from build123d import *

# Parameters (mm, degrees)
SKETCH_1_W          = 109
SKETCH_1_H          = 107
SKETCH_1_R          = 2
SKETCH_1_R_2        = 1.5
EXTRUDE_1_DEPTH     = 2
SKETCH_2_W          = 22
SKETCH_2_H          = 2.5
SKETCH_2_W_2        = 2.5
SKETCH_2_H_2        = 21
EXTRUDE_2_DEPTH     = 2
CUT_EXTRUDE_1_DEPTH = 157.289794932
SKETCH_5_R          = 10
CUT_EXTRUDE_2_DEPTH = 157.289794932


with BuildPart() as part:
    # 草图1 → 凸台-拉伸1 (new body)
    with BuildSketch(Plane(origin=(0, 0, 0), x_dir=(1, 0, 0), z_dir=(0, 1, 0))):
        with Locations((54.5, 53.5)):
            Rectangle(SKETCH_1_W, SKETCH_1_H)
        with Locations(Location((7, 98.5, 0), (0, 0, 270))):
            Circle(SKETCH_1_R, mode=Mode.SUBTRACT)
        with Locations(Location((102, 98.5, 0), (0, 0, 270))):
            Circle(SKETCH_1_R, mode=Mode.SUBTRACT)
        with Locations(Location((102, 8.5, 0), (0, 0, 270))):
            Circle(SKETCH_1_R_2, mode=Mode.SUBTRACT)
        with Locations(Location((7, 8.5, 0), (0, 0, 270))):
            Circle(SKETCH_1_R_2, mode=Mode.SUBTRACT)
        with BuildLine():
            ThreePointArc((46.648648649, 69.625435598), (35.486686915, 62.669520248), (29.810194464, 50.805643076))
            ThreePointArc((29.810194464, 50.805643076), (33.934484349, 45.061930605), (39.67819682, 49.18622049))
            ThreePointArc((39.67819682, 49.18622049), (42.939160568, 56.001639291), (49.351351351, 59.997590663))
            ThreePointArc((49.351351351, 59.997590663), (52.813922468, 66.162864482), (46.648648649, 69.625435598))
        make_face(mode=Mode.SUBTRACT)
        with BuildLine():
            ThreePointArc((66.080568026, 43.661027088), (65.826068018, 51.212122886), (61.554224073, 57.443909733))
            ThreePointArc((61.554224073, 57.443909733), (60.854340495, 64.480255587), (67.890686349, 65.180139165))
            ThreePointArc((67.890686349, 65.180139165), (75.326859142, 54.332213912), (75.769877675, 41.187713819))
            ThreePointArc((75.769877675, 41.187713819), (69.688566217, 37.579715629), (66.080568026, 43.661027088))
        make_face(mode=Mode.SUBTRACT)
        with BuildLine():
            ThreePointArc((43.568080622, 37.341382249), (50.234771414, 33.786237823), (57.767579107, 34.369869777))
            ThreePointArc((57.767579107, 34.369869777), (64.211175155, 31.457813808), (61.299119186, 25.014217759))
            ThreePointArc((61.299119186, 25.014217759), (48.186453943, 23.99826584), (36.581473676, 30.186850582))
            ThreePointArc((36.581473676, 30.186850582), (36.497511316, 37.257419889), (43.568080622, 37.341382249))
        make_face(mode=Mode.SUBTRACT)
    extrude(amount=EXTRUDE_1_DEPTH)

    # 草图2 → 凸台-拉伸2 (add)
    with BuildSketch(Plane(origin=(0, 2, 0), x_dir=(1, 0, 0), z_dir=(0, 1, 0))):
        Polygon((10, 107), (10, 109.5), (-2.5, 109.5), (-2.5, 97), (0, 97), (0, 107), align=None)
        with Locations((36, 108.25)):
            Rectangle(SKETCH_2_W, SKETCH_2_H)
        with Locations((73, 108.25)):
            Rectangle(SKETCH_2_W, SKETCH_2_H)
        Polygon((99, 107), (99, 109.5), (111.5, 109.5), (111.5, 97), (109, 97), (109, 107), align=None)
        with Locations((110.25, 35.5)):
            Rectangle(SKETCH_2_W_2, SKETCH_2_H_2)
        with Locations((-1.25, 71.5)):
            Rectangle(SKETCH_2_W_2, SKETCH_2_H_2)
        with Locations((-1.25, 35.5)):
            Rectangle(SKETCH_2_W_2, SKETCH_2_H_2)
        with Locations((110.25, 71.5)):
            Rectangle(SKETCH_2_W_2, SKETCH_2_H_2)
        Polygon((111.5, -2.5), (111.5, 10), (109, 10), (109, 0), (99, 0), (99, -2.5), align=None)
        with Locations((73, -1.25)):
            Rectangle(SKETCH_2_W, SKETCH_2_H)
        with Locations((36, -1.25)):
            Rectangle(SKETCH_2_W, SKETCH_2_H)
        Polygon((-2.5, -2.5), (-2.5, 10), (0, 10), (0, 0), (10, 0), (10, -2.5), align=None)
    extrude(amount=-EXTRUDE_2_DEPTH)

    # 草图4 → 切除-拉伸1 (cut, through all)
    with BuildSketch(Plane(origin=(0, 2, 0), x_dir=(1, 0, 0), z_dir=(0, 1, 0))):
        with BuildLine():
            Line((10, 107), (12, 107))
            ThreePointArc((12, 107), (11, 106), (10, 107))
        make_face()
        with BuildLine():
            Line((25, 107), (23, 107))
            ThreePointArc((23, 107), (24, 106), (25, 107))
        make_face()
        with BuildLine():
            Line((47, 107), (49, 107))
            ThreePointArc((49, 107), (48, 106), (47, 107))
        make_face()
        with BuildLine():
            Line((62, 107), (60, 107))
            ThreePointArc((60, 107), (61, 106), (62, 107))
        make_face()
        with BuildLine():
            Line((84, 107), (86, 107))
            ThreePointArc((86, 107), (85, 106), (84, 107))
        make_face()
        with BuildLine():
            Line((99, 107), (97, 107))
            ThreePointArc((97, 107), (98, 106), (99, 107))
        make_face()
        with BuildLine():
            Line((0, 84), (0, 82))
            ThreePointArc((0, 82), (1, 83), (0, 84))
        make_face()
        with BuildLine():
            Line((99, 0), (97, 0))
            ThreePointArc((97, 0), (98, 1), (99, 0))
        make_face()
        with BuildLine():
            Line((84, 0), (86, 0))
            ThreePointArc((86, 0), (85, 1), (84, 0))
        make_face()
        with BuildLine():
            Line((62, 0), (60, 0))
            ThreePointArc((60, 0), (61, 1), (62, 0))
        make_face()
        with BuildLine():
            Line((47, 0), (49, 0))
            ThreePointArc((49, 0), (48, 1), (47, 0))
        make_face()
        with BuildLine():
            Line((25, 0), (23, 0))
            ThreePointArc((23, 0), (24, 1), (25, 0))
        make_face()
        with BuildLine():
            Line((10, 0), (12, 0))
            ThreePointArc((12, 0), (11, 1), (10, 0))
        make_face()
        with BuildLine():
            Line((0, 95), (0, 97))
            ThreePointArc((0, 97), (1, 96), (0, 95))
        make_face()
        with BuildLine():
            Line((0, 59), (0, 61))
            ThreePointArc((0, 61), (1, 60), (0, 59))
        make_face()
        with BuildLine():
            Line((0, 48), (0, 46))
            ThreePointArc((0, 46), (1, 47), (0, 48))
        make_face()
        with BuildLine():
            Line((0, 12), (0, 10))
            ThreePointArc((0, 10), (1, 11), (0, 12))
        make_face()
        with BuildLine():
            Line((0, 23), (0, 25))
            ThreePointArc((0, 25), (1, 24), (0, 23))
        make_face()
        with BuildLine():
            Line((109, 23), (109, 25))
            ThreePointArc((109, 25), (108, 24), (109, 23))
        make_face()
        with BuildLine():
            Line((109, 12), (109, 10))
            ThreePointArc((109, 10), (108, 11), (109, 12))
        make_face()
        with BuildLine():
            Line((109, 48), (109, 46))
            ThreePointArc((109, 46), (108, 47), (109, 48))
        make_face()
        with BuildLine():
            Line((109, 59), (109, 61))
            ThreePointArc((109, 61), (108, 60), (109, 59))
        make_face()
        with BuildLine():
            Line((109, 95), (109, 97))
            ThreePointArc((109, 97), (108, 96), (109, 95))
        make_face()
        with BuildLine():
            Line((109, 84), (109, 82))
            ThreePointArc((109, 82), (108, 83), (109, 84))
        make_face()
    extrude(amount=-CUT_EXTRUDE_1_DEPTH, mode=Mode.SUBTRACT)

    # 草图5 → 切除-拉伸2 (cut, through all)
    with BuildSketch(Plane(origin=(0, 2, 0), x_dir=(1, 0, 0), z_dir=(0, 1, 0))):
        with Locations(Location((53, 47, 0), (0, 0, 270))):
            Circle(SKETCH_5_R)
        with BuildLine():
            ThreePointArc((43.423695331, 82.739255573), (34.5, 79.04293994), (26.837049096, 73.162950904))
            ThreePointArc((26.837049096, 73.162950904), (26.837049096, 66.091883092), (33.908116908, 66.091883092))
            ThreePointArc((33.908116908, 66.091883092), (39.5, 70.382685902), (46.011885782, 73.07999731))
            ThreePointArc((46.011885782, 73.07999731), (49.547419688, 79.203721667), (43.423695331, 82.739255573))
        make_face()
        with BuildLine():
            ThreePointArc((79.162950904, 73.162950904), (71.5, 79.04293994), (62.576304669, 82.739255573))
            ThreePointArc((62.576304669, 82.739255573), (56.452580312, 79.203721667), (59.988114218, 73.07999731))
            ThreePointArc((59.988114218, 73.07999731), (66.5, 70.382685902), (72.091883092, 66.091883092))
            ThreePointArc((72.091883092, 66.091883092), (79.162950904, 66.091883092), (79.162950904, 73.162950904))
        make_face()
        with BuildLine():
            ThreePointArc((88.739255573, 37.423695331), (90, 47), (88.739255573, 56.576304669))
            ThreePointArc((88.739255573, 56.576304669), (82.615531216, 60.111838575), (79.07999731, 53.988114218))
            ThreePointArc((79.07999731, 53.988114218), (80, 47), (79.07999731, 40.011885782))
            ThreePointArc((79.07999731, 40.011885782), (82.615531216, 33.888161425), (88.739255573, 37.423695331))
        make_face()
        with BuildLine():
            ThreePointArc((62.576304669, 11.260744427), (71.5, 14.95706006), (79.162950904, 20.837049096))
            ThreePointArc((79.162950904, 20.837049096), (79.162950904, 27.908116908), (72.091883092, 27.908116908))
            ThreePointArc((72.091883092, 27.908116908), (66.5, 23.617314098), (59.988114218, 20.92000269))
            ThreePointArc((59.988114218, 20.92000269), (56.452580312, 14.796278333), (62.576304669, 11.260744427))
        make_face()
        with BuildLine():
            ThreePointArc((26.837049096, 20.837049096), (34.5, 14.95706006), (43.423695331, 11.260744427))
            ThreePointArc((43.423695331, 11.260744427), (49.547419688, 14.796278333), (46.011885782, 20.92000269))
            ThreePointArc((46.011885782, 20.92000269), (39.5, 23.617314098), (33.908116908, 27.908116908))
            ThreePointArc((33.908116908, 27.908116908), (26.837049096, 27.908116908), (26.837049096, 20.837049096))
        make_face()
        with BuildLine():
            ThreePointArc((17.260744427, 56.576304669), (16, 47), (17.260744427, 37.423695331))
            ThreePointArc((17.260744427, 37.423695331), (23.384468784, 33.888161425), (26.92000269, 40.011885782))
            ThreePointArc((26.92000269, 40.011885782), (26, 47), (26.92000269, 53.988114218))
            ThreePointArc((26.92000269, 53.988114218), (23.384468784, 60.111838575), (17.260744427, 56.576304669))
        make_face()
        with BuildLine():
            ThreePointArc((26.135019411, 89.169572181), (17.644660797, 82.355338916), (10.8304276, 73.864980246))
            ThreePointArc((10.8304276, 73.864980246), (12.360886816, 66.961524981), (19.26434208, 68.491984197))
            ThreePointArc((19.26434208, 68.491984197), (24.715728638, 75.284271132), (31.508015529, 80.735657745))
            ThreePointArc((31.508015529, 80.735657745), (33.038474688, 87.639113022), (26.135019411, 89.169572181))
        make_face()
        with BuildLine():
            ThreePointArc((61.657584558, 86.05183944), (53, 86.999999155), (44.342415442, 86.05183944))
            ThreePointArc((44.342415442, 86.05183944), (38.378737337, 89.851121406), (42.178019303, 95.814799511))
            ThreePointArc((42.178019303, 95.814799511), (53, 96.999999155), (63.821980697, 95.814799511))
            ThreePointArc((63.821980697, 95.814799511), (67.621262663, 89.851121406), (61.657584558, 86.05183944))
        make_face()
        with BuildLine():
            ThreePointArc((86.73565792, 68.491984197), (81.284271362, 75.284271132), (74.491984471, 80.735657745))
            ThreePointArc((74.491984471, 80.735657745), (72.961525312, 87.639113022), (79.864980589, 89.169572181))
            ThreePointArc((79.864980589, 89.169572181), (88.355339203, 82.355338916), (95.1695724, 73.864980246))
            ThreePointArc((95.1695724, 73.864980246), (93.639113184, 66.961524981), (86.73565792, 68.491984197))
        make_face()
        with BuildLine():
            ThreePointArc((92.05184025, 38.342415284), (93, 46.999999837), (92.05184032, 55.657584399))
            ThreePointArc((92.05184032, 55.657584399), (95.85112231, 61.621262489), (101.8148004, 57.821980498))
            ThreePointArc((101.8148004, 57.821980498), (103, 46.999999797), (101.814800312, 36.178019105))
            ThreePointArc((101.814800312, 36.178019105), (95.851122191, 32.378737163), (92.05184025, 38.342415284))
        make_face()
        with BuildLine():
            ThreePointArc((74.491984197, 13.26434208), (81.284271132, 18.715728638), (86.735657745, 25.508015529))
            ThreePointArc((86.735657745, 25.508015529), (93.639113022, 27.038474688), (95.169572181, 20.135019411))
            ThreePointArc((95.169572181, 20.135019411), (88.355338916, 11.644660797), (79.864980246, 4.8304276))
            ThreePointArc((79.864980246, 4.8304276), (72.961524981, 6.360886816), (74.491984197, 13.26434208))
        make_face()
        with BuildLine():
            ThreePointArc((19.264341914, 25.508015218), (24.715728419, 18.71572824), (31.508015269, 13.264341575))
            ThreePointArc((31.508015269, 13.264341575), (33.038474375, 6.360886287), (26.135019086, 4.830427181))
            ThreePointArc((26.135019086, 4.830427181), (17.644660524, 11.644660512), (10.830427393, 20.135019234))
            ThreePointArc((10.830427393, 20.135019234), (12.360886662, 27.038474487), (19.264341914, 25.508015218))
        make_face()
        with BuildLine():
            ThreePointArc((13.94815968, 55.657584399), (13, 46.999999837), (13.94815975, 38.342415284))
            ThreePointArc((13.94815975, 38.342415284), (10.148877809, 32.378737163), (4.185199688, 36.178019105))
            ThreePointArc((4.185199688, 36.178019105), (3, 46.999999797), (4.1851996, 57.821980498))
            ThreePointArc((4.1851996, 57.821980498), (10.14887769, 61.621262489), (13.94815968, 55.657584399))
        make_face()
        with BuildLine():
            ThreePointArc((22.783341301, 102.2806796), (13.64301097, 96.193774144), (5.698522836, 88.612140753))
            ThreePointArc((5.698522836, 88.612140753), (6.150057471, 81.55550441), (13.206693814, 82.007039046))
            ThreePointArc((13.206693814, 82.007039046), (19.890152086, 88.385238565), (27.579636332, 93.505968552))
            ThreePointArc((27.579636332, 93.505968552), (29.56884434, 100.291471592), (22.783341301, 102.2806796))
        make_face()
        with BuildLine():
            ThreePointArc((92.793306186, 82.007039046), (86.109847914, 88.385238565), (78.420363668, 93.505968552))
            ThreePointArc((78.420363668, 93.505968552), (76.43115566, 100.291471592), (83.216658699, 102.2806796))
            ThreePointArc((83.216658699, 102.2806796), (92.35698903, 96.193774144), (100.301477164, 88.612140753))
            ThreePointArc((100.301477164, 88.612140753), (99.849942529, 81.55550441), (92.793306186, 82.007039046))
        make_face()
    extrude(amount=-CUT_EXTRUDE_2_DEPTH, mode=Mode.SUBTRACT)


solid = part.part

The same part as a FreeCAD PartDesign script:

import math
import FreeCAD as App
import Part
import Sketcher


def add_polygon(sketch, points):
    """Adds a closed chain of lines whose ends are joined by coincident constraints."""
    first, n = sketch.GeometryCount, len(points)
    for a, b in zip(points, points[1:] + points[:1]):
        sketch.addGeometry(Part.LineSegment(App.Vector(*a, 0), App.Vector(*b, 0)), False)
    for i in range(n):
        sketch.addConstraint(Sketcher.Constraint("Coincident", first + i, 2, first + (i + 1) % n, 1))

doc = App.newDocument("Part")
body = doc.addObject("PartDesign::Body", "Body")

# Sketch on XZ plane
sketch1 = body.newObject("Sketcher::SketchObject", "Sketch")
sketch1.AttachmentSupport = (doc.getObject("XZ_Plane"), [""])
sketch1.MapMode = "FlatFace"
add_polygon(sketch1, [(0, -107), (0, 0), (109, 0), (109, -107)])  # lines 0-3
sketch1.addGeometry(Part.Circle(App.Vector(7, -8.5, 0), App.Vector(0, 0, 1), 1.5), False)  # 4
sketch1.addGeometry(Part.ArcOfCircle(Part.Circle(App.Vector(40.074777, -33.764116, 0), App.Vector(0, 0, 1), 5), math.radians(134.31965), math.radians(314.31965)), False)  # 5
sketch1.addGeometry(Part.ArcOfCircle(Part.Circle(App.Vector(53, -47, 0), App.Vector(0, 0, 1), 13.5), math.radians(69.31965), math.radians(134.31965)), False)  # 6
sketch1.addGeometry(Part.ArcOfCircle(Part.Circle(App.Vector(59.533349, -29.692044, 0), App.Vector(0, 0, 1), 5), math.radians(-110.68035), math.radians(69.31965)), False)  # 7
sketch1.addGeometry(Part.ArcOfCircle(Part.Circle(App.Vector(53, -47, 0), App.Vector(0, 0, 1), 23.5), math.radians(69.31965), math.radians(134.31965)), False)  # 8
sketch1.addGeometry(Part.Circle(App.Vector(102, -8.5, 0), App.Vector(0, 0, 1), 1.5), False)  # 9
sketch1.addGeometry(Part.ArcOfCircle(Part.Circle(App.Vector(70.925223, -42.42437, 0), App.Vector(0, 0, 1), 5), math.radians(14.31965), math.radians(194.31965)), False)  # 10
sketch1.addGeometry(Part.ArcOfCircle(Part.Circle(App.Vector(53, -47, 0), App.Vector(0, 0, 1), 13.5), math.radians(-50.68035), math.radians(14.31965)), False)  # 11
sketch1.addGeometry(Part.ArcOfCircle(Part.Circle(App.Vector(64.722455, -61.312024, 0), App.Vector(0, 0, 1), 5), math.radians(129.31965), math.radians(309.31965)), False)  # 12
sketch1.addGeometry(Part.ArcOfCircle(Part.Circle(App.Vector(53, -47, 0), App.Vector(0, 0, 1), 23.5), math.radians(-50.68035), math.radians(14.31965)), False)  # 13
sketch1.addGeometry(Part.ArcOfCircle(Part.Circle(App.Vector(53, -47, 0), App.Vector(0, 0, 1), 23.5), math.radians(-170.68035), math.radians(-105.68035)), False)  # 14
sketch1.addGeometry(Part.ArcOfCircle(Part.Circle(App.Vector(48, -64.811513, 0), App.Vector(0, 0, 1), 5), math.radians(-105.68035), math.radians(74.31965)), False)  # 15
sketch1.addGeometry(Part.ArcOfCircle(Part.Circle(App.Vector(53, -47, 0), App.Vector(0, 0, 1), 13.5), math.radians(-170.68035), math.radians(-105.68035)), False)  # 16
sketch1.addGeometry(Part.ArcOfCircle(Part.Circle(App.Vector(34.744196, -49.995932, 0), App.Vector(0, 0, 1), 5), math.radians(9.31965), math.radians(189.31965)), False)  # 17
sketch1.addGeometry(Part.Circle(App.Vector(7, -98.5, 0), App.Vector(0, 0, 1), 2), False)  # 18
sketch1.addGeometry(Part.Circle(App.Vector(102, -98.5, 0), App.Vector(0, 0, 1), 2), False)  # 19
sketch1.addConstraint([
    Sketcher.Constraint("Tangent", 5, 2, 6, 2),
    Sketcher.Constraint("Tangent", 6, 1, 7, 1),
    Sketcher.Constraint("Tangent", 7, 2, 8, 1),
    Sketcher.Constraint("Tangent", 8, 2, 5, 1),
    Sketcher.Constraint("Tangent", 10, 2, 11, 2),
    Sketcher.Constraint("Tangent", 11, 1, 12, 1),
    Sketcher.Constraint("Tangent", 12, 2, 13, 1),
    Sketcher.Constraint("Tangent", 13, 2, 10, 1),
    Sketcher.Constraint("Tangent", 14, 2, 15, 1),
    Sketcher.Constraint("Tangent", 15, 2, 16, 2),
    Sketcher.Constraint("Tangent", 16, 1, 17, 1),
    Sketcher.Constraint("Tangent", 17, 2, 14, 1),
    Sketcher.Constraint("Vertical", 0),
    Sketcher.Constraint("Horizontal", 1),
    Sketcher.Constraint("Vertical", 2),
    Sketcher.Constraint("Horizontal", 3),
    Sketcher.Constraint("Coincident", 0, 2, -1, 1),
    Sketcher.Constraint("Coincident", 8, 3, 6, 3),
    Sketcher.Constraint("Coincident", 11, 3, 6, 3),
    Sketcher.Constraint("Coincident", 13, 3, 6, 3),
    Sketcher.Constraint("Coincident", 14, 3, 6, 3),
    Sketcher.Constraint("Coincident", 16, 3, 6, 3),
    Sketcher.Constraint("Equal", 4, 9),
    Sketcher.Constraint("Equal", 7, 10),
    Sketcher.Constraint("Equal", 6, 11),
    Sketcher.Constraint("Equal", 13, 14),
    Sketcher.Constraint("Equal", 12, 15),
    Sketcher.Constraint("Equal", 18, 19),
    Sketcher.Constraint("Horizontal", 4, 3, 9, 3),
    Sketcher.Constraint("Horizontal", 18, 3, 19, 3),
    Sketcher.Constraint("Vertical", 4, 3, 18, 3),
    Sketcher.Constraint("Vertical", 9, 3, 19, 3),
    Sketcher.Constraint("Diameter", 4, 3.0),
    Sketcher.Constraint("Diameter", 18, 4.0),
    Sketcher.Constraint("Radius", 5, 5.0),
    Sketcher.Constraint("Radius", 6, 13.5),
    Sketcher.Constraint("DistanceX", 1, 1, 1, 2, 109.0),
    Sketcher.Constraint("DistanceY", 0, 1, 0, 2, 107.0),
    Sketcher.Constraint("DistanceX", -1, 1, 4, 3, 7.0),
    Sketcher.Constraint("DistanceX", -1, 1, 6, 3, 53.0),
    Sketcher.Constraint("DistanceY", 6, 3, -1, 1, 47.0),
    Sketcher.Constraint("DistanceX", -1, 1, 9, 3, 102.0),
    Sketcher.Constraint("DistanceX", -1, 1, 15, 3, 48.0),
    Sketcher.Constraint("DistanceY", 4, 3, -1, 1, 8.5),
    Sketcher.Constraint("DistanceY", 18, 3, -1, 1, 98.5),
    Sketcher.Constraint("DistanceX", 17, 3, 16, 1, 4.934001),
    Sketcher.Constraint("DistanceY", 5, 3, 7, 2, 8.749899),
    Sketcher.Constraint("DistanceX", 6, 1, 13, 2, 18.002299),
    Sketcher.Constraint("DistanceX", -1, 1, 7, 3, 59.533349),
    Sketcher.Constraint("DistanceY", 11, 1, -1, 1, 57.44391),
])
pad1 = body.newObject("PartDesign::Pad", "Pad")
pad1.Profile = sketch1
pad1.Length = 2
pad1.Reversed = True

# Sketch on XZ plane
sketch2 = body.newObject("Sketcher::SketchObject", "Sketch001")
sketch2.AttachmentSupport = (doc.getObject("XZ_Plane"), [""])
sketch2.MapMode = "FlatFace"
sketch2.AttachmentOffset = App.Placement(App.Vector(0, 0, -2), App.Rotation())
add_polygon(sketch2, [(10, -107), (10, -109.5), (-2.5, -109.5), (-2.5, -97), (0, -97), (0, -107)])  # lines 0-5
add_polygon(sketch2, [(25, -109.5), (25, -107), (47, -107), (47, -109.5)])  # lines 6-9
add_polygon(sketch2, [(62, -109.5), (62, -107), (84, -107), (84, -109.5)])  # lines 10-13
add_polygon(sketch2, [(99, -109.5), (99, -107), (109, -107), (109, -97), (111.5, -97), (111.5, -109.5)])  # lines 14-19
add_polygon(sketch2, [(109, -46), (109, -25), (111.5, -25), (111.5, -46)])  # lines 20-23
add_polygon(sketch2, [(-2.5, -82), (-2.5, -61), (0, -61), (0, -82)])  # lines 24-27
add_polygon(sketch2, [(-2.5, -46), (-2.5, -25), (0, -25), (0, -46)])  # lines 28-31
add_polygon(sketch2, [(109, -82), (109, -61), (111.5, -61), (111.5, -82)])  # lines 32-35
add_polygon(sketch2, [(111.5, 2.5), (111.5, -10), (109, -10), (109, 0), (99, 0), (99, 2.5)])  # lines 36-41
add_polygon(sketch2, [(62, 0), (62, 2.5), (84, 2.5), (84, 0)])  # lines 42-45
add_polygon(sketch2, [(25, 0), (25, 2.5), (47, 2.5), (47, 0)])  # lines 46-49
add_polygon(sketch2, [(-2.5, -10), (-2.5, 2.5), (10, 2.5), (10, 0), (0, 0), (0, -10)])  # lines 50-55
sketch2.addConstraint([
    Sketcher.Constraint("Vertical", 0),
    Sketcher.Constraint("Horizontal", 1),
    Sketcher.Constraint("Vertical", 2),
    Sketcher.Constraint("Horizontal", 3),
    Sketcher.Constraint("Vertical", 4),
    Sketcher.Constraint("Horizontal", 5),
    Sketcher.Constraint("Vertical", 6),
    Sketcher.Constraint("Horizontal", 7),
    Sketcher.Constraint("Vertical", 8),
    Sketcher.Constraint("Horizontal", 9),
    Sketcher.Constraint("Vertical", 10),
    Sketcher.Constraint("Horizontal", 11),
    Sketcher.Constraint("Vertical", 12),
    Sketcher.Constraint("Horizontal", 13),
    Sketcher.Constraint("Vertical", 14),
    Sketcher.Constraint("Horizontal", 15),
    Sketcher.Constraint("Vertical", 16),
    Sketcher.Constraint("Horizontal", 17),
    Sketcher.Constraint("Vertical", 18),
    Sketcher.Constraint("Horizontal", 19),
    Sketcher.Constraint("Vertical", 20),
    Sketcher.Constraint("Horizontal", 21),
    Sketcher.Constraint("Vertical", 22),
    Sketcher.Constraint("Horizontal", 23),
    Sketcher.Constraint("Vertical", 24),
    Sketcher.Constraint("Horizontal", 25),
    Sketcher.Constraint("Vertical", 26),
    Sketcher.Constraint("Horizontal", 27),
    Sketcher.Constraint("Vertical", 28),
    Sketcher.Constraint("Horizontal", 29),
    Sketcher.Constraint("Vertical", 30),
    Sketcher.Constraint("Horizontal", 31),
    Sketcher.Constraint("Vertical", 32),
    Sketcher.Constraint("Horizontal", 33),
    Sketcher.Constraint("Vertical", 34),
    Sketcher.Constraint("Horizontal", 35),
    Sketcher.Constraint("Vertical", 36),
    Sketcher.Constraint("Horizontal", 37),
    Sketcher.Constraint("Vertical", 38),
    Sketcher.Constraint("Horizontal", 39),
    Sketcher.Constraint("Vertical", 40),
    Sketcher.Constraint("Horizontal", 41),
    Sketcher.Constraint("Vertical", 42),
    Sketcher.Constraint("Horizontal", 43),
    Sketcher.Constraint("Vertical", 44),
    Sketcher.Constraint("Horizontal", 45),
    Sketcher.Constraint("Vertical", 46),
    Sketcher.Constraint("Horizontal", 47),
    Sketcher.Constraint("Vertical", 48),
    Sketcher.Constraint("Horizontal", 49),
    Sketcher.Constraint("Vertical", 50),
    Sketcher.Constraint("Horizontal", 51),
    Sketcher.Constraint("Vertical", 52),
    Sketcher.Constraint("Horizontal", 53),
    Sketcher.Constraint("Vertical", 54),
    Sketcher.Constraint("Horizontal", 55),
    Sketcher.Constraint("Coincident", 53, 2, -1, 1),
    Sketcher.Constraint("PointOnObject", 3, 2, -2),
    Sketcher.Constraint("PointOnObject", 25, 2, -2),
    Sketcher.Constraint("PointOnObject", 29, 2, -2),
    Sketcher.Constraint("PointOnObject", 38, 2, -1),
    Sketcher.Constraint("PointOnObject", 44, 2, -1),
    Sketcher.Constraint("PointOnObject", 48, 2, -1),
    Sketcher.Constraint("Horizontal", 5, 2, 6, 2),
    Sketcher.Constraint("Horizontal", 1, 2, 8, 2),
    Sketcher.Constraint("Horizontal", 7, 2, 10, 2),
    Sketcher.Constraint("Horizontal", 9, 2, 12, 2),
    Sketcher.Constraint("Horizontal", 11, 2, 14, 2),
    Sketcher.Constraint("Horizontal", 3, 2, 16, 2),
    Sketcher.Constraint("Horizontal", 13, 2, 18, 2),
    Sketcher.Constraint("Horizontal", 21, 2, 28, 2),
    Sketcher.Constraint("Horizontal", 23, 2, 30, 2),
    Sketcher.Constraint("Horizontal", 25, 2, 32, 2),
    Sketcher.Constraint("Horizontal", 27, 2, 34, 2),
    Sketcher.Constraint("Horizontal", 41, 2, 42, 2),
    Sketcher.Constraint("Horizontal", 43, 2, 46, 2),
    Sketcher.Constraint("Horizontal", 47, 2, 50, 2),
    Sketcher.Constraint("Horizontal", 37, 2, 54, 2),
    Sketcher.Constraint("Vertical", 16, 2, 20, 2),
    Sketcher.Constraint("Vertical", 18, 2, 21, 2),
    Sketcher.Constraint("Vertical", 2, 2, 24, 2),
    Sketcher.Constraint("Vertical", 27, 2, 28, 2),
    Sketcher.Constraint("Vertical", 23, 2, 32, 2),
    Sketcher.Constraint("Vertical", 22, 2, 33, 2),
    Sketcher.Constraint("Vertical", 34, 2, 36, 2),
    Sketcher.Constraint("Vertical", 35, 2, 37, 2),
    Sketcher.Constraint("Vertical", 19, 2, 39, 2),
    Sketcher.Constraint("Vertical", 13, 2, 42, 2),
    Sketcher.Constraint("Vertical", 12, 2, 43, 2),
    Sketcher.Constraint("Vertical", 9, 2, 46, 2),
    Sketcher.Constraint("Vertical", 8, 2, 47, 2),
    Sketcher.Constraint("Vertical", 31, 2, 50, 2),
    Sketcher.Constraint("Vertical", 5, 2, 51, 2),
    Sketcher.Constraint("Equal", 9, 11),
    Sketcher.Constraint("Equal", 5, 15),
    Sketcher.Constraint("Equal", 3, 17),
    Sketcher.Constraint("Equal", 55, 0),
    Sketcher.Constraint("Equal", 51, 2),
    Sketcher.Constraint("Equal", 22, 24),
    Sketcher.Constraint("Equal", 18, 36),
    Sketcher.Constraint("Equal", 16, 38),
    Sketcher.Constraint("DistanceX", 5, 1, 5, 2, 10.0),
    Sketcher.Constraint("DistanceX", 7, 1, 7, 2, 22.0),
    Sketcher.Constraint("DistanceY", 20, 1, 20, 2, 21.0),
    Sketcher.Constraint("DistanceX", 1, 2, 1, 1, 12.5),
    Sketcher.Constraint("DistanceY", 2, 2, -1, 1, 97.0),
    Sketcher.Constraint("DistanceX", -1, 1, 6, 2, 25.0),
    Sketcher.Constraint("DistanceX", -1, 1, 10, 2, 62.0),
    Sketcher.Constraint("DistanceX", -1, 1, 14, 2, 99.0),
    Sketcher.Constraint("DistanceY", 20, 2, -1, 1, 25.0),
    Sketcher.Constraint("DistanceY", 24, 2, -1, 1, 61.0),
])
pad2 = body.newObject("PartDesign::Pad", "Pad001")
pad2.Profile = sketch2
pad2.Length = 2

# Sketch on XZ plane
sketch3 = body.newObject("Sketcher::SketchObject", "Sketch002")
sketch3.AttachmentSupport = (doc.getObject("XZ_Plane"), [""])
sketch3.MapMode = "FlatFace"
sketch3.AttachmentOffset = App.Placement(App.Vector(0, 0, -2), App.Rotation())
sketch3.addGeometry([
    Part.LineSegment(App.Vector(12, -107, 0), App.Vector(10, -107, 0)),  # 0
    Part.ArcOfCircle(Part.Circle(App.Vector(11, -107, 0), App.Vector(0, 0, 1), 1), math.radians(0), math.radians(180)),  # 1
    Part.LineSegment(App.Vector(25, -107, 0), App.Vector(23, -107, 0)),  # 2
    Part.ArcOfCircle(Part.Circle(App.Vector(24, -107, 0), App.Vector(0, 0, 1), 1), math.radians(0), math.radians(180)),  # 3
    Part.LineSegment(App.Vector(49, -107, 0), App.Vector(47, -107, 0)),  # 4
    Part.ArcOfCircle(Part.Circle(App.Vector(48, -107, 0), App.Vector(0, 0, 1), 1), math.radians(0), math.radians(180)),  # 5
    Part.LineSegment(App.Vector(62, -107, 0), App.Vector(60, -107, 0)),  # 6
    Part.ArcOfCircle(Part.Circle(App.Vector(61, -107, 0), App.Vector(0, 0, 1), 1), math.radians(0), math.radians(180)),  # 7
    Part.LineSegment(App.Vector(86, -107, 0), App.Vector(84, -107, 0)),  # 8
    Part.ArcOfCircle(Part.Circle(App.Vector(85, -107, 0), App.Vector(0, 0, 1), 1), math.radians(0), math.radians(180)),  # 9
    Part.LineSegment(App.Vector(99, -107, 0), App.Vector(97, -107, 0)),  # 10
    Part.ArcOfCircle(Part.Circle(App.Vector(98, -107, 0), App.Vector(0, 0, 1), 1), math.radians(0), math.radians(180)),  # 11
    Part.LineSegment(App.Vector(0, -84, 0), App.Vector(0, -82, 0)),  # 12
    Part.ArcOfCircle(Part.Circle(App.Vector(0, -83, 0), App.Vector(0, 0, 1), 1), math.radians(-90), math.radians(90)),  # 13
    Part.LineSegment(App.Vector(97, 0, 0), App.Vector(99, 0, 0)),  # 14
    Part.ArcOfCircle(Part.Circle(App.Vector(98, 0, 0), App.Vector(0, 0, 1), 1), math.radians(180), math.radians(360)),  # 15
    Part.LineSegment(App.Vector(84, 0, 0), App.Vector(86, 0, 0)),  # 16
    Part.ArcOfCircle(Part.Circle(App.Vector(85, 0, 0), App.Vector(0, 0, 1), 1), math.radians(180), math.radians(360)),  # 17
    Part.LineSegment(App.Vector(60, 0, 0), App.Vector(62, 0, 0)),  # 18
    Part.ArcOfCircle(Part.Circle(App.Vector(61, 0, 0), App.Vector(0, 0, 1), 1), math.radians(180), math.radians(360)),  # 19
    Part.LineSegment(App.Vector(47, 0, 0), App.Vector(49, 0, 0)),  # 20
    Part.ArcOfCircle(Part.Circle(App.Vector(48, 0, 0), App.Vector(0, 0, 1), 1), math.radians(180), math.radians(360)),  # 21
    Part.LineSegment(App.Vector(23, 0, 0), App.Vector(25, 0, 0)),  # 22
    Part.ArcOfCircle(Part.Circle(App.Vector(24, 0, 0), App.Vector(0, 0, 1), 1), math.radians(180), math.radians(360)),  # 23
    Part.LineSegment(App.Vector(10, 0, 0), App.Vector(12, 0, 0)),  # 24
    Part.ArcOfCircle(Part.Circle(App.Vector(11, 0, 0), App.Vector(0, 0, 1), 1), math.radians(180), math.radians(360)),  # 25
    Part.LineSegment(App.Vector(0, -97, 0), App.Vector(0, -95, 0)),  # 26
    Part.ArcOfCircle(Part.Circle(App.Vector(0, -96, 0), App.Vector(0, 0, 1), 1), math.radians(-90), math.radians(90)),  # 27
    Part.LineSegment(App.Vector(0, -61, 0), App.Vector(0, -59, 0)),  # 28
    Part.ArcOfCircle(Part.Circle(App.Vector(0, -60, 0), App.Vector(0, 0, 1), 1), math.radians(-90), math.radians(90)),  # 29
    Part.LineSegment(App.Vector(0, -48, 0), App.Vector(0, -46, 0)),  # 30
    Part.ArcOfCircle(Part.Circle(App.Vector(0, -47, 0), App.Vector(0, 0, 1), 1), math.radians(-90), math.radians(90)),  # 31
    Part.LineSegment(App.Vector(0, -12, 0), App.Vector(0, -10, 0)),  # 32
    Part.ArcOfCircle(Part.Circle(App.Vector(0, -11, 0), App.Vector(0, 0, 1), 1), math.radians(-90), math.radians(90)),  # 33
    Part.LineSegment(App.Vector(0, -25, 0), App.Vector(0, -23, 0)),  # 34
    Part.ArcOfCircle(Part.Circle(App.Vector(0, -24, 0), App.Vector(0, 0, 1), 1), math.radians(-90), math.radians(90)),  # 35
    Part.LineSegment(App.Vector(109, -23, 0), App.Vector(109, -25, 0)),  # 36
    Part.ArcOfCircle(Part.Circle(App.Vector(109, -24, 0), App.Vector(0, 0, 1), 1), math.radians(90), math.radians(270)),  # 37
    Part.LineSegment(App.Vector(109, -10, 0), App.Vector(109, -12, 0)),  # 38
    Part.ArcOfCircle(Part.Circle(App.Vector(109, -11, 0), App.Vector(0, 0, 1), 1), math.radians(90), math.radians(270)),  # 39
    Part.LineSegment(App.Vector(109, -46, 0), App.Vector(109, -48, 0)),  # 40
    Part.ArcOfCircle(Part.Circle(App.Vector(109, -47, 0), App.Vector(0, 0, 1), 1), math.radians(90), math.radians(270)),  # 41
    Part.LineSegment(App.Vector(109, -59, 0), App.Vector(109, -61, 0)),  # 42
    Part.ArcOfCircle(Part.Circle(App.Vector(109, -60, 0), App.Vector(0, 0, 1), 1), math.radians(90), math.radians(270)),  # 43
    Part.LineSegment(App.Vector(109, -95, 0), App.Vector(109, -97, 0)),  # 44
    Part.ArcOfCircle(Part.Circle(App.Vector(109, -96, 0), App.Vector(0, 0, 1), 1), math.radians(90), math.radians(270)),  # 45
    Part.LineSegment(App.Vector(109, -82, 0), App.Vector(109, -84, 0)),  # 46
    Part.ArcOfCircle(Part.Circle(App.Vector(109, -83, 0), App.Vector(0, 0, 1), 1), math.radians(90), math.radians(270)),  # 47
], False)
sketch3.addConstraint([
    Sketcher.Constraint("Coincident", 0, 1, 1, 1),
    Sketcher.Constraint("Coincident", 1, 2, 0, 2),
    Sketcher.Constraint("Coincident", 2, 1, 3, 1),
    Sketcher.Constraint("Coincident", 3, 2, 2, 2),
    Sketcher.Constraint("Coincident", 4, 1, 5, 1),
    Sketcher.Constraint("Coincident", 5, 2, 4, 2),
    Sketcher.Constraint("Coincident", 6, 1, 7, 1),
    Sketcher.Constraint("Coincident", 7, 2, 6, 2),
    Sketcher.Constraint("Coincident", 8, 1, 9, 1),
    Sketcher.Constraint("Coincident", 9, 2, 8, 2),
    Sketcher.Constraint("Coincident", 10, 1, 11, 1),
    Sketcher.Constraint("Coincident", 11, 2, 10, 2),
    Sketcher.Constraint("Coincident", 12, 1, 13, 1),
    Sketcher.Constraint("Coincident", 13, 2, 12, 2),
    Sketcher.Constraint("Coincident", 14, 1, 15, 1),
    Sketcher.Constraint("Coincident", 15, 2, 14, 2),
    Sketcher.Constraint("Coincident", 16, 1, 17, 1),
    Sketcher.Constraint("Coincident", 17, 2, 16, 2),
    Sketcher.Constraint("Coincident", 18, 1, 19, 1),
    Sketcher.Constraint("Coincident", 19, 2, 18, 2),
    Sketcher.Constraint("Coincident", 20, 1, 21, 1),
    Sketcher.Constraint("Coincident", 21, 2, 20, 2),
    Sketcher.Constraint("Coincident", 22, 1, 23, 1),
    Sketcher.Constraint("Coincident", 23, 2, 22, 2),
    Sketcher.Constraint("Coincident", 24, 1, 25, 1),
    Sketcher.Constraint("Coincident", 25, 2, 24, 2),
    Sketcher.Constraint("Coincident", 26, 1, 27, 1),
    Sketcher.Constraint("Coincident", 27, 2, 26, 2),
    Sketcher.Constraint("Coincident", 28, 1, 29, 1),
    Sketcher.Constraint("Coincident", 29, 2, 28, 2),
    Sketcher.Constraint("Coincident", 30, 1, 31, 1),
    Sketcher.Constraint("Coincident", 31, 2, 30, 2),
    Sketcher.Constraint("Coincident", 32, 1, 33, 1),
    Sketcher.Constraint("Coincident", 33, 2, 32, 2),
    Sketcher.Constraint("Coincident", 34, 1, 35, 1),
    Sketcher.Constraint("Coincident", 35, 2, 34, 2),
    Sketcher.Constraint("Coincident", 36, 1, 37, 1),
    Sketcher.Constraint("Coincident", 37, 2, 36, 2),
    Sketcher.Constraint("Coincident", 38, 1, 39, 1),
    Sketcher.Constraint("Coincident", 39, 2, 38, 2),
    Sketcher.Constraint("Coincident", 40, 1, 41, 1),
    Sketcher.Constraint("Coincident", 41, 2, 40, 2),
    Sketcher.Constraint("Coincident", 42, 1, 43, 1),
    Sketcher.Constraint("Coincident", 43, 2, 42, 2),
    Sketcher.Constraint("Coincident", 44, 1, 45, 1),
    Sketcher.Constraint("Coincident", 45, 2, 44, 2),
    Sketcher.Constraint("Coincident", 46, 1, 47, 1),
    Sketcher.Constraint("Coincident", 47, 2, 46, 2),
    Sketcher.Constraint("Horizontal", 0),
    Sketcher.Constraint("Horizontal", 2),
    Sketcher.Constraint("Horizontal", 4),
    Sketcher.Constraint("Horizontal", 6),
    Sketcher.Constraint("Horizontal", 8),
    Sketcher.Constraint("Horizontal", 10),
    Sketcher.Constraint("Vertical", 12),
    Sketcher.Constraint("Horizontal", 14),
    Sketcher.Constraint("Horizontal", 16),
    Sketcher.Constraint("Horizontal", 18),
    Sketcher.Constraint("Horizontal", 20),
    Sketcher.Constraint("Horizontal", 22),
    Sketcher.Constraint("Horizontal", 24),
    Sketcher.Constraint("Vertical", 26),
    Sketcher.Constraint("Vertical", 28),
    Sketcher.Constraint("Vertical", 30),
    Sketcher.Constraint("Vertical", 32),
    Sketcher.Constraint("Vertical", 34),
    Sketcher.Constraint("Vertical", 36),
    Sketcher.Constraint("Vertical", 38),
    Sketcher.Constraint("Vertical", 40),
    Sketcher.Constraint("Vertical", 42),
    Sketcher.Constraint("Vertical", 44),
    Sketcher.Constraint("Vertical", 46),
    Sketcher.Constraint("Equal", 1, 3),
    Sketcher.Constraint("Equal", 3, 5),
    Sketcher.Constraint("Equal", 5, 7),
    Sketcher.Constraint("Equal", 7, 9),
    Sketcher.Constraint("Equal", 9, 11),
    Sketcher.Constraint("Equal", 11, 13),
    Sketcher.Constraint("Equal", 13, 15),
    Sketcher.Constraint("Equal", 15, 17),
    Sketcher.Constraint("Equal", 17, 19),
    Sketcher.Constraint("Equal", 19, 21),
    Sketcher.Constraint("Equal", 21, 23),
    Sketcher.Constraint("Equal", 23, 25),
    Sketcher.Constraint("Equal", 25, 27),
    Sketcher.Constraint("Equal", 27, 29),
    Sketcher.Constraint("Equal", 29, 31),
    Sketcher.Constraint("Equal", 31, 33),
    Sketcher.Constraint("Equal", 33, 35),
    Sketcher.Constraint("Equal", 35, 37),
    Sketcher.Constraint("Equal", 37, 39),
    Sketcher.Constraint("Equal", 39, 41),
    Sketcher.Constraint("Equal", 41, 43),
    Sketcher.Constraint("Equal", 43, 45),
    Sketcher.Constraint("Equal", 45, 47),
    Sketcher.Constraint("PointOnObject", 13, 3, -2),
    Sketcher.Constraint("PointOnObject", 15, 3, -1),
    Sketcher.Constraint("PointOnObject", 17, 3, -1),
    Sketcher.Constraint("PointOnObject", 19, 3, -1),
    Sketcher.Constraint("PointOnObject", 21, 3, -1),
    Sketcher.Constraint("PointOnObject", 23, 3, -1),
    Sketcher.Constraint("PointOnObject", 25, 3, -1),
    Sketcher.Constraint("PointOnObject", 27, 3, -2),
    Sketcher.Constraint("PointOnObject", 29, 3, -2),
    Sketcher.Constraint("PointOnObject", 31, 3, -2),
    Sketcher.Constraint("PointOnObject", 33, 3, -2),
    Sketcher.Constraint("PointOnObject", 35, 3, -2),
    Sketcher.Constraint("PointOnObject", 12, 1, -2),
    Sketcher.Constraint("PointOnObject", 14, 1, -1),
    Sketcher.Constraint("PointOnObject", 16, 1, -1),
    Sketcher.Constraint("PointOnObject", 18, 1, -1),
    Sketcher.Constraint("PointOnObject", 20, 1, -1),
    Sketcher.Constraint("PointOnObject", 22, 1, -1),
    Sketcher.Constraint("PointOnObject", 24, 1, -1),
    Sketcher.Constraint("PointOnObject", 26, 1, -2),
    Sketcher.Constraint("PointOnObject", 28, 1, -2),
    Sketcher.Constraint("PointOnObject", 30, 1, -2),
    Sketcher.Constraint("PointOnObject", 32, 1, -2),
    Sketcher.Constraint("PointOnObject", 34, 1, -2),
    Sketcher.Constraint("Horizontal", 1, 3, 3, 3),
    Sketcher.Constraint("Horizontal", 3, 3, 5, 3),
    Sketcher.Constraint("Horizontal", 5, 3, 7, 3),
    Sketcher.Constraint("Horizontal", 7, 3, 9, 3),
    Sketcher.Constraint("Horizontal", 9, 3, 11, 3),
    Sketcher.Constraint("Horizontal", 35, 3, 37, 3),
    Sketcher.Constraint("Horizontal", 33, 3, 39, 3),
    Sketcher.Constraint("Horizontal", 31, 3, 41, 3),
    Sketcher.Constraint("Horizontal", 29, 3, 43, 3),
    Sketcher.Constraint("Horizontal", 27, 3, 45, 3),
    Sketcher.Constraint("Horizontal", 13, 3, 47, 3),
    Sketcher.Constraint("Horizontal", 11, 3, 0, 1),
    Sketcher.Constraint("Horizontal", 1, 2, 2, 1),
    Sketcher.Constraint("Horizontal", 3, 2, 4, 1),
    Sketcher.Constraint("Horizontal", 5, 2, 6, 1),
    Sketcher.Constraint("Horizontal", 7, 2, 8, 1),
    Sketcher.Constraint("Horizontal", 9, 2, 10, 1),
    Sketcher.Constraint("Vertical", 11, 3, 15, 3),
    Sketcher.Constraint("Vertical", 9, 3, 17, 3),
    Sketcher.Constraint("Vertical", 7, 3, 19, 3),
    Sketcher.Constraint("Vertical", 5, 3, 21, 3),
    Sketcher.Constraint("Vertical", 3, 3, 23, 3),
    Sketcher.Constraint("Vertical", 1, 3, 25, 3),
    Sketcher.Constraint("Vertical", 37, 3, 39, 3),
    Sketcher.Constraint("Vertical", 39, 3, 41, 3),
    Sketcher.Constraint("Vertical", 41, 3, 43, 3),
    Sketcher.Constraint("Vertical", 43, 3, 45, 3),
    Sketcher.Constraint("Vertical", 45, 3, 47, 3),
    Sketcher.Constraint("Vertical", 47, 3, 36, 1),
    Sketcher.Constraint("Vertical", 37, 2, 38, 1),
    Sketcher.Constraint("Vertical", 39, 2, 40, 1),
    Sketcher.Constraint("Vertical", 41, 2, 42, 1),
    Sketcher.Constraint("Vertical", 43, 2, 44, 1),
    Sketcher.Constraint("Vertical", 45, 2, 46, 1),
    Sketcher.Constraint("Radius", 1, 1.0),
    Sketcher.Constraint("DistanceX", -1, 1, 1, 3, 11.0),
    Sketcher.Constraint("DistanceY", 1, 3, -1, 1, 107.0),
    Sketcher.Constraint("DistanceX", -1, 1, 3, 3, 24.0),
    Sketcher.Constraint("DistanceX", -1, 1, 5, 3, 48.0),
    Sketcher.Constraint("DistanceX", -1, 1, 7, 3, 61.0),
    Sketcher.Constraint("DistanceX", -1, 1, 9, 3, 85.0),
    Sketcher.Constraint("DistanceX", -1, 1, 11, 3, 98.0),
    Sketcher.Constraint("DistanceY", 13, 3, -1, 1, 83.0),
    Sketcher.Constraint("DistanceY", 27, 3, -1, 1, 96.0),
    Sketcher.Constraint("DistanceY", 29, 3, -1, 1, 60.0),
    Sketcher.Constraint("DistanceY", 31, 3, -1, 1, 47.0),
    Sketcher.Constraint("DistanceY", 33, 3, -1, 1, 11.0),
    Sketcher.Constraint("DistanceY", 35, 3, -1, 1, 24.0),
    Sketcher.Constraint("DistanceX", -1, 1, 37, 3, 109.0),
])
pocket1 = body.newObject("PartDesign::Pocket", "Pocket")
pocket1.Profile = sketch3
pocket1.Type = "ThroughAll"
pocket1.Reversed = True

# Sketch on XZ plane
sketch4 = body.newObject("Sketcher::SketchObject", "Sketch003")
sketch4.AttachmentSupport = (doc.getObject("XZ_Plane"), [""])
sketch4.MapMode = "FlatFace"
sketch4.AttachmentOffset = App.Placement(App.Vector(0, 0, -2), App.Rotation())
sketch4.addGeometry([
    Part.Circle(App.Vector(53, -47, 0), App.Vector(0, 0, 1), 10),  # 0
    Part.ArcOfCircle(Part.Circle(App.Vector(53, -47, 0), App.Vector(0, 0, 1), 37), math.radians(-135), math.radians(-105)),  # 1
    Part.ArcOfCircle(Part.Circle(App.Vector(30.372583, -69.627417, 0), App.Vector(0, 0, 1), 5), math.radians(45), math.radians(225)),  # 2
    Part.ArcOfCircle(Part.Circle(App.Vector(53, -47, 0), App.Vector(0, 0, 1), 27), math.radians(-135), math.radians(-105)),  # 3
    Part.ArcOfCircle(Part.Circle(App.Vector(44.717791, -77.909626, 0), App.Vector(0, 0, 1), 5), math.radians(-105), math.radians(75)),  # 4
    Part.ArcOfCircle(Part.Circle(App.Vector(53, -47, 0), App.Vector(0, 0, 1), 37), math.radians(-75), math.radians(-45)),  # 5
    Part.ArcOfCircle(Part.Circle(App.Vector(61.282209, -77.909626, 0), App.Vector(0, 0, 1), 5), math.radians(105), math.radians(285)),  # 6
    Part.ArcOfCircle(Part.Circle(App.Vector(53, -47, 0), App.Vector(0, 0, 1), 27), math.radians(-75), math.radians(-45)),  # 7
    Part.ArcOfCircle(Part.Circle(App.Vector(75.627417, -69.627417, 0), App.Vector(0, 0, 1), 5), math.radians(-45), math.radians(135)),  # 8
    Part.ArcOfCircle(Part.Circle(App.Vector(53, -47, 0), App.Vector(0, 0, 1), 37), math.radians(-15), math.radians(15)),  # 9
    Part.ArcOfCircle(Part.Circle(App.Vector(83.909626, -55.282209, 0), App.Vector(0, 0, 1), 5), math.radians(165), math.radians(345)),  # 10
    Part.ArcOfCircle(Part.Circle(App.Vector(53, -47, 0), App.Vector(0, 0, 1), 27), math.radians(-15), math.radians(15)),  # 11
    Part.ArcOfCircle(Part.Circle(App.Vector(83.909626, -38.717791, 0), App.Vector(0, 0, 1), 5), math.radians(15), math.radians(195)),  # 12
    Part.ArcOfCircle(Part.Circle(App.Vector(53, -47, 0), App.Vector(0, 0, 1), 37), math.radians(45), math.radians(75)),  # 13
    Part.ArcOfCircle(Part.Circle(App.Vector(75.627417, -24.372583, 0), App.Vector(0, 0, 1), 5), math.radians(-135), math.radians(45)),  # 14
    Part.ArcOfCircle(Part.Circle(App.Vector(53, -47, 0), App.Vector(0, 0, 1), 27), math.radians(45), math.radians(75)),  # 15
    Part.ArcOfCircle(Part.Circle(App.Vector(61.282209, -16.090374, 0), App.Vector(0, 0, 1), 5), math.radians(75), math.radians(255)),  # 16
    Part.ArcOfCircle(Part.Circle(App.Vector(53, -47, 0), App.Vector(0, 0, 1), 37), math.radians(105), math.radians(135)),  # 17
    Part.ArcOfCircle(Part.Circle(App.Vector(44.717791, -16.090374, 0), App.Vector(0, 0, 1), 5), math.radians(-75), math.radians(105)),  # 18
    Part.ArcOfCircle(Part.Circle(App.Vector(53, -47, 0), App.Vector(0, 0, 1), 27), math.radians(105), math.radians(135)),  # 19
    Part.ArcOfCircle(Part.Circle(App.Vector(30.372583, -24.372583, 0), App.Vector(0, 0, 1), 5), math.radians(135), math.radians(315)),  # 20
    Part.ArcOfCircle(Part.Circle(App.Vector(53, -47, 0), App.Vector(0, 0, 1), 37), math.radians(165), math.radians(195)),  # 21
    Part.ArcOfCircle(Part.Circle(App.Vector(22.090374, -38.717791, 0), App.Vector(0, 0, 1), 5), math.radians(-15), math.radians(165)),  # 22
    Part.ArcOfCircle(Part.Circle(App.Vector(53, -47, 0), App.Vector(0, 0, 1), 27), math.radians(165), math.radians(195)),  # 23
    Part.ArcOfCircle(Part.Circle(App.Vector(22.090374, -55.282209, 0), App.Vector(0, 0, 1), 5), math.radians(-165), math.radians(15)),  # 24
    Part.ArcOfCircle(Part.Circle(App.Vector(53, -47, 0), App.Vector(0, 0, 1), 50), math.radians(-147.5), math.radians(-122.5)),  # 25
    Part.ArcOfCircle(Part.Circle(App.Vector(15.047385, -71.178482, 0), App.Vector(0, 0, 1), 5), math.radians(32.5), math.radians(212.5)),  # 26
    Part.ArcOfCircle(Part.Circle(App.Vector(53, -47, 0), App.Vector(0, 0, 1), 40), math.radians(-147.5), math.radians(-122.5)),  # 27
    Part.ArcOfCircle(Part.Circle(App.Vector(28.821517, -84.952615, 0), App.Vector(0, 0, 1), 5), math.radians(-122.5), math.radians(57.5)),  # 28
    Part.ArcOfCircle(Part.Circle(App.Vector(53, -46.999999, 0), App.Vector(0, 0, 1), 40), math.radians(-102.5), math.radians(-77.5)),  # 29
    Part.ArcOfCircle(Part.Circle(App.Vector(62.739783, -90.933319, 0), App.Vector(0, 0, 1), 5), math.radians(-77.5), math.radians(102.5)),  # 30
    Part.ArcOfCircle(Part.Circle(App.Vector(53, -46.999999, 0), App.Vector(0, 0, 1), 50), math.radians(-102.5), math.radians(-77.5)),  # 31
    Part.ArcOfCircle(Part.Circle(App.Vector(43.260217, -90.933319, 0), App.Vector(0, 0, 1), 5), math.radians(77.5), math.radians(257.5)),  # 32
    Part.ArcOfCircle(Part.Circle(App.Vector(53, -47, 0), App.Vector(0, 0, 1), 40), math.radians(-57.5), math.radians(-32.5)),  # 33
    Part.ArcOfCircle(Part.Circle(App.Vector(90.952615, -71.178482, 0), App.Vector(0, 0, 1), 5), math.radians(-32.5), math.radians(147.5)),  # 34
    Part.ArcOfCircle(Part.Circle(App.Vector(53, -47, 0), App.Vector(0, 0, 1), 50), math.radians(-57.5), math.radians(-32.5)),  # 35
    Part.ArcOfCircle(Part.Circle(App.Vector(77.178483, -84.952615, 0), App.Vector(0, 0, 1), 5), math.radians(122.5), math.radians(302.5)),  # 36
    Part.ArcOfCircle(Part.Circle(App.Vector(53, -47, 0), App.Vector(0, 0, 1), 40), math.radians(-12.5), math.radians(12.5)),  # 37
    Part.ArcOfCircle(Part.Circle(App.Vector(96.93332, -37.260217, 0), App.Vector(0, 0, 1), 5), math.radians(12.5), math.radians(192.5)),  # 38
    Part.ArcOfCircle(Part.Circle(App.Vector(53, -47, 0), App.Vector(0, 0, 1), 50), math.radians(-12.5), math.radians(12.5)),  # 39
    Part.ArcOfCircle(Part.Circle(App.Vector(96.93332, -56.739782, 0), App.Vector(0, 0, 1), 5), math.radians(167.5), math.radians(347.5)),  # 40
    Part.ArcOfCircle(Part.Circle(App.Vector(53, -47, 0), App.Vector(0, 0, 1), 40), math.radians(32.5), math.radians(57.5)),  # 41
    Part.ArcOfCircle(Part.Circle(App.Vector(77.178482, -9.047385, 0), App.Vector(0, 0, 1), 5), math.radians(57.5), math.radians(237.5)),  # 42
    Part.ArcOfCircle(Part.Circle(App.Vector(53, -47, 0), App.Vector(0, 0, 1), 50), math.radians(32.5), math.radians(57.5)),  # 43
    Part.ArcOfCircle(Part.Circle(App.Vector(90.952615, -22.821517, 0), App.Vector(0, 0, 1), 5), math.radians(-147.5), math.radians(32.5)),  # 44
    Part.ArcOfCircle(Part.Circle(App.Vector(53, -46.999999, 0), App.Vector(0, 0, 1), 40), math.radians(122.500001), math.radians(147.500001)),  # 45
    Part.ArcOfCircle(Part.Circle(App.Vector(15.047385, -22.821517, 0), App.Vector(0, 0, 1), 5), math.radians(147.500001), math.radians(327.500001)),  # 46
    Part.ArcOfCircle(Part.Circle(App.Vector(53, -46.999999, 0), App.Vector(0, 0, 1), 50), math.radians(122.500001), math.radians(147.500001)),  # 47
    Part.ArcOfCircle(Part.Circle(App.Vector(28.821517, -9.047384, 0), App.Vector(0, 0, 1), 5), math.radians(-57.499999), math.radians(122.500001)),  # 48
    Part.ArcOfCircle(Part.Circle(App.Vector(53, -47, 0), App.Vector(0, 0, 1), 40), math.radians(167.5), math.radians(192.5)),  # 49
    Part.ArcOfCircle(Part.Circle(App.Vector(9.06668, -56.739782, 0), App.Vector(0, 0, 1), 5), math.radians(-167.5), math.radians(12.5)),  # 50
    Part.ArcOfCircle(Part.Circle(App.Vector(53, -47, 0), App.Vector(0, 0, 1), 50), math.radians(167.5), math.radians(192.5)),  # 51
    Part.ArcOfCircle(Part.Circle(App.Vector(9.06668, -37.260217, 0), App.Vector(0, 0, 1), 5), math.radians(-12.5), math.radians(167.5)),  # 52
    Part.ArcOfCircle(Part.Circle(App.Vector(53, -47, 0), App.Vector(0, 0, 1), 63), math.radians(-138.661207), math.radians(-118.661207)),  # 53
    Part.ArcOfCircle(Part.Circle(App.Vector(9.452608, -85.30959, 0), App.Vector(0, 0, 1), 5), math.radians(41.338793), math.radians(221.338793)),  # 54
    Part.ArcOfCircle(Part.Circle(App.Vector(53, -47, 0), App.Vector(0, 0, 1), 53), math.radians(-138.661207), math.radians(-118.661207)),  # 55
    Part.ArcOfCircle(Part.Circle(App.Vector(25.181489, -97.893324, 0), App.Vector(0, 0, 1), 5), math.radians(-118.661207), math.radians(61.338793)),  # 56
    Part.ArcOfCircle(Part.Circle(App.Vector(53, -47, 0), App.Vector(0, 0, 1), 53), math.radians(-61.338793), math.radians(-41.338793)),  # 57
    Part.ArcOfCircle(Part.Circle(App.Vector(96.547392, -85.30959, 0), App.Vector(0, 0, 1), 5), math.radians(-41.338793), math.radians(138.661207)),  # 58
    Part.ArcOfCircle(Part.Circle(App.Vector(53, -47, 0), App.Vector(0, 0, 1), 63), math.radians(-61.338793), math.radians(-41.338793)),  # 59
    Part.ArcOfCircle(Part.Circle(App.Vector(80.818511, -97.893324, 0), App.Vector(0, 0, 1), 5), math.radians(118.661207), math.radians(298.661207)),  # 60
], False)
sketch4.addConstraint([
    Sketcher.Constraint("Tangent", 1, 1, 2, 2),
    Sketcher.Constraint("Tangent", 2, 1, 3, 1),
    Sketcher.Constraint("Tangent", 3, 2, 4, 2),
    Sketcher.Constraint("Tangent", 4, 1, 1, 2),
    Sketcher.Constraint("Tangent", 5, 1, 6, 2),
    Sketcher.Constraint("Tangent", 6, 1, 7, 1),
    Sketcher.Constraint("Tangent", 7, 2, 8, 2),
    Sketcher.Constraint("Tangent", 8, 1, 5, 2),
    Sketcher.Constraint("Tangent", 9, 1, 10, 2),
    Sketcher.Constraint("Tangent", 10, 1, 11, 1),
    Sketcher.Constraint("Tangent", 11, 2, 12, 2),
    Sketcher.Constraint("Tangent", 12, 1, 9, 2),
    Sketcher.Constraint("Tangent", 13, 1, 14, 2),
    Sketcher.Constraint("Tangent", 14, 1, 15, 1),
    Sketcher.Constraint("Tangent", 15, 2, 16, 2),
    Sketcher.Constraint("Tangent", 16, 1, 13, 2),
    Sketcher.Constraint("Tangent", 17, 1, 18, 2),
    Sketcher.Constraint("Tangent", 18, 1, 19, 1),
    Sketcher.Constraint("Tangent", 19, 2, 20, 2),
    Sketcher.Constraint("Tangent", 20, 1, 17, 2),
    Sketcher.Constraint("Tangent", 21, 1, 22, 2),
    Sketcher.Constraint("Tangent", 22, 1, 23, 1),
    Sketcher.Constraint("Tangent", 23, 2, 24, 2),
    Sketcher.Constraint("Tangent", 24, 1, 21, 2),
    Sketcher.Constraint("Tangent", 25, 1, 26, 2),
    Sketcher.Constraint("Tangent", 26, 1, 27, 1),
    Sketcher.Constraint("Tangent", 27, 2, 28, 2),
    Sketcher.Constraint("Tangent", 28, 1, 25, 2),
    Sketcher.Constraint("Tangent", 29, 2, 30, 2),
    Sketcher.Constraint("Tangent", 30, 1, 31, 2),
    Sketcher.Constraint("Tangent", 31, 1, 32, 2),
    Sketcher.Constraint("Tangent", 32, 1, 29, 1),
    Sketcher.Constraint("Tangent", 33, 2, 34, 2),
    Sketcher.Constraint("Tangent", 34, 1, 35, 2),
    Sketcher.Constraint("Tangent", 35, 1, 36, 2),
    Sketcher.Constraint("Tangent", 36, 1, 33, 1),
    Sketcher.Constraint("Tangent", 37, 2, 38, 2),
    Sketcher.Constraint("Tangent", 38, 1, 39, 2),
    Sketcher.Constraint("Tangent", 39, 1, 40, 2),
    Sketcher.Constraint("Tangent", 40, 1, 37, 1),
    Sketcher.Constraint("Tangent", 41, 2, 42, 2),
    Sketcher.Constraint("Tangent", 42, 1, 43, 2),
    Sketcher.Constraint("Tangent", 43, 1, 44, 2),
    Sketcher.Constraint("Tangent", 44, 1, 41, 1),
    Sketcher.Constraint("Tangent", 45, 2, 46, 2),
    Sketcher.Constraint("Tangent", 46, 1, 47, 2),
    Sketcher.Constraint("Tangent", 47, 1, 48, 2),
    Sketcher.Constraint("Tangent", 48, 1, 45, 1),
    Sketcher.Constraint("Tangent", 49, 2, 50, 2),
    Sketcher.Constraint("Tangent", 50, 1, 51, 2),
    Sketcher.Constraint("Tangent", 51, 1, 52, 2),
    Sketcher.Constraint("Tangent", 52, 1, 49, 1),
    Sketcher.Constraint("Tangent", 53, 1, 54, 2),
    Sketcher.Constraint("Tangent", 54, 1, 55, 1),
    Sketcher.Constraint("Tangent", 55, 2, 56, 2),
    Sketcher.Constraint("Tangent", 56, 1, 53, 2),
    Sketcher.Constraint("Tangent", 57, 2, 58, 2),
    Sketcher.Constraint("Tangent", 58, 1, 59, 2),
    Sketcher.Constraint("Tangent", 59, 1, 60, 2),
    Sketcher.Constraint("Tangent", 60, 1, 57, 1),
    Sketcher.Constraint("Coincident", 1, 3, 0, 3),
    Sketcher.Constraint("Coincident", 3, 3, 0, 3),
    Sketcher.Constraint("Coincident", 5, 3, 0, 3),
    Sketcher.Constraint("Coincident", 7, 3, 0, 3),
    Sketcher.Constraint("Coincident", 9, 3, 0, 3),
    Sketcher.Constraint("Coincident", 11, 3, 0, 3),
    Sketcher.Constraint("Coincident", 13, 3, 0, 3),
    Sketcher.Constraint("Coincident", 15, 3, 0, 3),
    Sketcher.Constraint("Coincident", 17, 3, 0, 3),
    Sketcher.Constraint("Coincident", 19, 3, 0, 3),
    Sketcher.Constraint("Coincident", 21, 3, 0, 3),
    Sketcher.Constraint("Coincident", 23, 3, 0, 3),
    Sketcher.Constraint("Coincident", 25, 3, 0, 3),
    Sketcher.Constraint("Coincident", 27, 3, 0, 3),
    Sketcher.Constraint("Coincident", 29, 3, 0, 3),
    Sketcher.Constraint("Coincident", 31, 3, 0, 3),
    Sketcher.Constraint("Coincident", 33, 3, 0, 3),
    Sketcher.Constraint("Coincident", 35, 3, 0, 3),
    Sketcher.Constraint("Coincident", 37, 3, 0, 3),
    Sketcher.Constraint("Coincident", 39, 3, 0, 3),
    Sketcher.Constraint("Coincident", 41, 3, 0, 3),
    Sketcher.Constraint("Coincident", 43, 3, 0, 3),
    Sketcher.Constraint("Coincident", 45, 3, 0, 3),
    Sketcher.Constraint("Coincident", 47, 3, 0, 3),
    Sketcher.Constraint("Coincident", 49, 3, 0, 3),
    Sketcher.Constraint("Coincident", 51, 3, 0, 3),
    Sketcher.Constraint("Coincident", 53, 3, 0, 3),
    Sketcher.Constraint("Coincident", 55, 3, 0, 3),
    Sketcher.Constraint("Coincident", 57, 3, 0, 3),
    Sketcher.Constraint("Coincident", 59, 3, 0, 3),
    Sketcher.Constraint("Equal", 1, 5),
    Sketcher.Constraint("Equal", 4, 6),
    Sketcher.Constraint("Equal", 5, 9),
    Sketcher.Constraint("Equal", 8, 10),
    Sketcher.Constraint("Equal", 9, 13),
    Sketcher.Constraint("Equal", 12, 14),
    Sketcher.Constraint("Equal", 13, 17),
    Sketcher.Constraint("Equal", 16, 18),
    Sketcher.Constraint("Equal", 17, 21),
    Sketcher.Constraint("Equal", 20, 22),
    Sketcher.Constraint("Equal", 24, 26),
    Sketcher.Constraint("Equal", 27, 29),
    Sketcher.Constraint("Equal", 28, 30),
    Sketcher.Constraint("Equal", 29, 33),
    Sketcher.Constraint("Equal", 32, 34),
    Sketcher.Constraint("Equal", 33, 37),
    Sketcher.Constraint("Equal", 36, 38),
    Sketcher.Constraint("Equal", 37, 41),
    Sketcher.Constraint("Equal", 40, 42),
    Sketcher.Constraint("Equal", 41, 45),
    Sketcher.Constraint("Equal", 44, 46),
    Sketcher.Constraint("Equal", 45, 49),
    Sketcher.Constraint("Equal", 48, 50),
    Sketcher.Constraint("Equal", 52, 54),
    Sketcher.Constraint("Equal", 55, 57),
    Sketcher.Constraint("Equal", 56, 58),
    Sketcher.Constraint("Horizontal", 4, 3, 6, 3),
    Sketcher.Constraint("Horizontal", 2, 3, 8, 3),
    Sketcher.Constraint("Horizontal", 16, 3, 18, 3),
    Sketcher.Constraint("Horizontal", 14, 3, 20, 3),
    Sketcher.Constraint("Horizontal", 12, 3, 22, 3),
    Sketcher.Constraint("Horizontal", 10, 3, 24, 3),
    Sketcher.Constraint("Horizontal", 30, 3, 32, 3),
    Sketcher.Constraint("Horizontal", 26, 3, 34, 3),
    Sketcher.Constraint("Horizontal", 28, 3, 36, 3),
    Sketcher.Constraint("Horizontal", 44, 3, 46, 3),
    Sketcher.Constraint("Horizontal", 42, 3, 48, 3),
    Sketcher.Constraint("Horizontal", 40, 3, 50, 3),
    Sketcher.Constraint("Horizontal", 38, 3, 52, 3),
    Sketcher.Constraint("Horizontal", 54, 3, 58, 3),
    Sketcher.Constraint("Horizontal", 56, 3, 60, 3),
    Sketcher.Constraint("Vertical", 10, 3, 12, 3),
    Sketcher.Constraint("Vertical", 8, 3, 14, 3),
    Sketcher.Constraint("Vertical", 6, 3, 16, 3),
    Sketcher.Constraint("Vertical", 38, 3, 40, 3),
    Sketcher.Constraint("Vertical", 36, 3, 42, 3),
    Sketcher.Constraint("Vertical", 34, 3, 44, 3),
    Sketcher.Constraint("Diameter", 0, 20.0),
    Sketcher.Constraint("Radius", 1, 37.0),
    Sketcher.Constraint("Radius", 2, 5.0),
    Sketcher.Constraint("Radius", 25, 50.0),
    Sketcher.Constraint("Radius", 53, 63.0),
    Sketcher.Constraint("DistanceX", -1, 1, 0, 3, 53.0),
    Sketcher.Constraint("DistanceY", 0, 3, -1, 1, 47.0),
    Sketcher.Constraint("DistanceY", 30, 1, -1, 1, 95.8148),
    Sketcher.Constraint("DistanceX", -1, 1, 38, 1, 101.8148),
    Sketcher.Constraint("DistanceX", -1, 1, 4, 3, 44.717791),
    Sketcher.Constraint("DistanceY", 10, 3, -1, 1, 55.282209),
    Sketcher.Constraint("DistanceX", -1, 1, 54, 3, 9.452608),
    Sketcher.Constraint("DistanceX", -1, 1, 56, 3, 25.181489),
    Sketcher.Constraint("DistanceX", -1, 1, 1, 1, 26.837049),
    Sketcher.Constraint("DistanceY", 25, 1, -1, 1, 73.86498),
    Sketcher.Constraint("DistanceX", -1, 1, 28, 1, 26.135019),
])
pocket2 = body.newObject("PartDesign::Pocket", "Pocket001")
pocket2.Profile = sketch4
pocket2.Type = "ThroughAll"
pocket2.Reversed = True

doc.recompute()
